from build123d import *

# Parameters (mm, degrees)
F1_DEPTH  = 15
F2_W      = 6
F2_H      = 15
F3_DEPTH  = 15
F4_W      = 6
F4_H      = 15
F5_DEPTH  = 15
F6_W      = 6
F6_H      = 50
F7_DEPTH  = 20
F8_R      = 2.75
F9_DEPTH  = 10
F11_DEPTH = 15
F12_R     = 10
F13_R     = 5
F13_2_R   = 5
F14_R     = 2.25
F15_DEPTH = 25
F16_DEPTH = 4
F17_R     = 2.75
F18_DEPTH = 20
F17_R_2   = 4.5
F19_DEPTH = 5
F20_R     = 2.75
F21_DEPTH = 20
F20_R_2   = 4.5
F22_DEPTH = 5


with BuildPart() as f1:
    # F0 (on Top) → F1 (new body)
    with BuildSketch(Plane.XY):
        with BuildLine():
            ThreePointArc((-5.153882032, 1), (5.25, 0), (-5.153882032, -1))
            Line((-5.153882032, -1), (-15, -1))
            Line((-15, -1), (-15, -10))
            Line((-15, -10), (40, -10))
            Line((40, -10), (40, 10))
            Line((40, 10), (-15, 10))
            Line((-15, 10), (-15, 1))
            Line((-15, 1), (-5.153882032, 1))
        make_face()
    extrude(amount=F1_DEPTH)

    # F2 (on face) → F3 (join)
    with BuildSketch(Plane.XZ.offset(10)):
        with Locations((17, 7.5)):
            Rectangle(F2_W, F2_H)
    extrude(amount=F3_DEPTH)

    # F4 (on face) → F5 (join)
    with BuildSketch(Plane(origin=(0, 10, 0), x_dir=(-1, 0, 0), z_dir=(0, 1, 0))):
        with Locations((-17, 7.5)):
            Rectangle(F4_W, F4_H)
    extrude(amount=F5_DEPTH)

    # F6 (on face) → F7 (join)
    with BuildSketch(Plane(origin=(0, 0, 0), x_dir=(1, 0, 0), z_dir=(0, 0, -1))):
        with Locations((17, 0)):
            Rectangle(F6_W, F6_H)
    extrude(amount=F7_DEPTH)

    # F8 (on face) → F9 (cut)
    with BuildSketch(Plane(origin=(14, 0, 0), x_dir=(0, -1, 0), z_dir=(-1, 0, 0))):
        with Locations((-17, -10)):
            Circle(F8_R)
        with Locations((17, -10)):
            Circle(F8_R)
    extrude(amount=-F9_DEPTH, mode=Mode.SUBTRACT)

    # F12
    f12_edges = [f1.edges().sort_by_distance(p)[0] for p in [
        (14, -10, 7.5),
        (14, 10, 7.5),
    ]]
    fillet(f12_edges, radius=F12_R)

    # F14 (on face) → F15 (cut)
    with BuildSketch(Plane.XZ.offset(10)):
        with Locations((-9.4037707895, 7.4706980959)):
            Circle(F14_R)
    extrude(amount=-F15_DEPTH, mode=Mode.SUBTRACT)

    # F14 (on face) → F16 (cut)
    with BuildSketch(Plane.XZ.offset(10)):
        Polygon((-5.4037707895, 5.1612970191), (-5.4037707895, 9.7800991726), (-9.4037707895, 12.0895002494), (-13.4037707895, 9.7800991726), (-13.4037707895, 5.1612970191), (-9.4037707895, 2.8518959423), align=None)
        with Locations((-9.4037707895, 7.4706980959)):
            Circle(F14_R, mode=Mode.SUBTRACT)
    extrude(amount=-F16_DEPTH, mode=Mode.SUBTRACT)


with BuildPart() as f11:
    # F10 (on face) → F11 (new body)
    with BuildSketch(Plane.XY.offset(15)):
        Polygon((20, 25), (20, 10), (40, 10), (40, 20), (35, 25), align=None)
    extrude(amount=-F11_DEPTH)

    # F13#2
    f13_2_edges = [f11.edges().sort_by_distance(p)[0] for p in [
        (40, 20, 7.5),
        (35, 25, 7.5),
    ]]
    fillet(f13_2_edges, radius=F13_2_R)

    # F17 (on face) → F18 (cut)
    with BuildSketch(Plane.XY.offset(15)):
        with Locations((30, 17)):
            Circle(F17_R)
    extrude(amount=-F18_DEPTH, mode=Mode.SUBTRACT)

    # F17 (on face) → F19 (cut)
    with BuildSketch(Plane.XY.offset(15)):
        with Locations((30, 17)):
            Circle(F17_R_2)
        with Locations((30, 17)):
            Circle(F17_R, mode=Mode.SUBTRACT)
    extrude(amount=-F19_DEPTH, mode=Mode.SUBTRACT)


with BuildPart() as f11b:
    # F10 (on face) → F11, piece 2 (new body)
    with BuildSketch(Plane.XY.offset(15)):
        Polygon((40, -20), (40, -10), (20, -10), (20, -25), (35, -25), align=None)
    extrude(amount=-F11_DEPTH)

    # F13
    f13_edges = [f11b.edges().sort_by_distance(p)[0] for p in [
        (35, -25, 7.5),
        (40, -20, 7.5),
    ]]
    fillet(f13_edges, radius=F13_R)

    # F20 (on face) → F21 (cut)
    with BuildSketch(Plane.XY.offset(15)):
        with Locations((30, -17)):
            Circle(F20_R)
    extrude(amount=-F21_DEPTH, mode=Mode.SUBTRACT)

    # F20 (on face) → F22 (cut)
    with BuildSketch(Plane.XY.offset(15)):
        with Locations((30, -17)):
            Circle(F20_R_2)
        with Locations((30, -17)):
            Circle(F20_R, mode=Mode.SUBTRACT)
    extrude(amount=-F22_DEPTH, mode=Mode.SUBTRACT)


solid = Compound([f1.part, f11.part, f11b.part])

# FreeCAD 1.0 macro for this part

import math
import FreeCAD as App
import Part
import Sketcher
Q = App.Units.Quantity


def edges_at(feature, points):
    """Names of the edges that pass closest to the given points."""
    edges = feature.Shape.Edges
    near = lambda p: min(range(len(edges)), key=lambda i: edges[i].distToShape(Part.Vertex(*p))[0])
    return sorted({f"Edge{near(p) + 1}" for p in points})

doc = App.newDocument("Part")
body = doc.addObject("PartDesign::Body", "Body")

sketch1 = body.newObject("Sketcher::SketchObject", "Sketch")
sketch1.AttachmentSupport = (doc.getObject("XY_Plane"), [""])
sketch1.MapMode = "FlatFace"
sketch1.addGeometry([
    Part.ArcOfCircle(Part.Circle(App.Vector(0, 0, 0), App.Vector(0, 0, 1), 5.2), math.radians(-169), math.radians(169)),
    Part.LineSegment(App.Vector(-5.2, -1, 0), App.Vector(-15, -1, 0)),
    Part.LineSegment(App.Vector(-15, -1, 0), App.Vector(-15, -10, 0)),
    Part.LineSegment(App.Vector(-15, -10, 0), App.Vector(40, -10, 0)),
    Part.LineSegment(App.Vector(40, -10, 0), App.Vector(40, 10, 0)),
    Part.LineSegment(App.Vector(40, 10, 0), App.Vector(-15, 10, 0)),
    Part.LineSegment(App.Vector(-15, 10, 0), App.Vector(-15, 1, 0)),
    Part.LineSegment(App.Vector(-15, 1, 0), App.Vector(-5.2, 1, 0)),
], False)
sketch1.addConstraint([
    Sketcher.Constraint("Coincident", 0, 1, 1, 1),
    Sketcher.Constraint("Coincident", 1, 2, 2, 1),
    Sketcher.Constraint("Coincident", 2, 2, 3, 1),
    Sketcher.Constraint("Coincident", 3, 2, 4, 1),
    Sketcher.Constraint("Coincident", 4, 2, 5, 1),
    Sketcher.Constraint("Coincident", 5, 2, 6, 1),
    Sketcher.Constraint("Coincident", 6, 2, 7, 1),
    Sketcher.Constraint("Coincident", 7, 2, 0, 2),
    Sketcher.Constraint("Horizontal", 1),
    Sketcher.Constraint("Vertical", 2),
    Sketcher.Constraint("Horizontal", 3),
    Sketcher.Constraint("Vertical", 4),
    Sketcher.Constraint("Horizontal", 5),
    Sketcher.Constraint("Vertical", 6),
    Sketcher.Constraint("Horizontal", 7),
    Sketcher.Constraint("Coincident", 0, 3, -1, 1),
    Sketcher.Constraint("Symmetric", 2, 2, 5, 2, -1),
    Sketcher.Constraint("Vertical", 0, 1, 7, 2),
    Sketcher.Constraint("DistanceX", 3, 1, 3, 2, 55.0),
    Sketcher.Constraint("DistanceY", 2, 2, 2, 1, 9.0),
    Sketcher.Constraint("DistanceY", 4, 1, 4, 2, 20.0),
    Sketcher.Constraint("Radius", 0, 5.25),
    Sketcher.Constraint("DistanceX", 1, 2, -1, 1, 15.0),
])
pad1 = body.newObject("PartDesign::Pad", "Pad")
pad1.Profile = sketch1
pad1.Length = 15

sketch2 = body.newObject("Sketcher::SketchObject", "Sketch001")
sketch2.AttachmentSupport = (doc.getObject("XZ_Plane"), [""])
sketch2.MapMode = "FlatFace"
sketch2.AttachmentOffset = App.Placement(App.Vector(0, 0, 10), App.Rotation())
sketch2.addGeometry([
    Part.LineSegment(App.Vector(14, 15, 0), App.Vector(14, 0, 0)),
    Part.LineSegment(App.Vector(14, 0, 0), App.Vector(20, 0, 0)),
    Part.LineSegment(App.Vector(20, 0, 0), App.Vector(20, 15, 0)),
    Part.LineSegment(App.Vector(20, 15, 0), App.Vector(14, 15, 0)),
], False)
sketch2.addConstraint([
    Sketcher.Constraint("Coincident", 0, 2, 1, 1),
    Sketcher.Constraint("Coincident", 1, 2, 2, 1),
    Sketcher.Constraint("Coincident", 2, 2, 3, 1),
    Sketcher.Constraint("Coincident", 3, 2, 0, 1),
    Sketcher.Constraint("Vertical", 0),
    Sketcher.Constraint("Horizontal", 1),
    Sketcher.Constraint("Vertical", 2),
    Sketcher.Constraint("Horizontal", 3),
    Sketcher.Constraint("PointOnObject", 0, 2, -1),
    Sketcher.Constraint("DistanceX", 1, 1, 1, 2, 6.0),
    Sketcher.Constraint("DistanceY", 0, 2, 0, 1, 15.0),
    Sketcher.Constraint("DistanceX", -1, 1, 0, 2, 14.0),
])
pad2 = body.newObject("PartDesign::Pad", "Pad001")
pad2.Profile = sketch2
pad2.Length = 15

sketch3 = body.newObject("Sketcher::SketchObject", "Sketch002")
sketch3.AttachmentSupport = (doc.getObject("XZ_Plane"), [""])
sketch3.MapMode = "FlatFace"
sketch3.AttachmentOffset = App.Placement(App.Vector(0, 0, -10), App.Rotation())
sketch3.addGeometry([
    Part.LineSegment(App.Vector(20, 15, 0), App.Vector(20, 0, 0)),
    Part.LineSegment(App.Vector(20, 0, 0), App.Vector(14, 0, 0)),
    Part.LineSegment(App.Vector(14, 0, 0), App.Vector(14, 15, 0)),
    Part.LineSegment(App.Vector(14, 15, 0), App.Vector(20, 15, 0)),
], False)
sketch3.addConstraint([
    Sketcher.Constraint("Coincident", 0, 2, 1, 1),
    Sketcher.Constraint("Coincident", 1, 2, 2, 1),
    Sketcher.Constraint("Coincident", 2, 2, 3, 1),
    Sketcher.Constraint("Coincident", 3, 2, 0, 1),
    Sketcher.Constraint("Vertical", 0),
    Sketcher.Constraint("Horizontal", 1),
    Sketcher.Constraint("Vertical", 2),
    Sketcher.Constraint("Horizontal", 3),
    Sketcher.Constraint("PointOnObject", 0, 2, -1),
    Sketcher.Constraint("DistanceX", 1, 2, 1, 1, 6.0),
    Sketcher.Constraint("DistanceY", 0, 2, 0, 1, 15.0),
    Sketcher.Constraint("DistanceX", -1, 1, 0, 2, 20.0),
])
pad3 = body.newObject("PartDesign::Pad", "Pad002")
pad3.Profile = sketch3
pad3.Length = 15
pad3.Reversed = True

sketch4 = body.newObject("Sketcher::SketchObject", "Sketch003")
sketch4.AttachmentSupport = (doc.getObject("XY_Plane"), [""])
sketch4.MapMode = "FlatFace"
sketch4.addGeometry([
    Part.LineSegment(App.Vector(14, -25, 0), App.Vector(14, 25, 0)),
    Part.LineSegment(App.Vector(14, 25, 0), App.Vector(20, 25, 0)),
    Part.LineSegment(App.Vector(20, 25, 0), App.Vector(20, -25, 0)),
    Part.LineSegment(App.Vector(20, -25, 0), App.Vector(14, -25, 0)),
], False)
sketch4.addConstraint([
    Sketcher.Constraint("Coincident", 0, 2, 1, 1),
    Sketcher.Constraint("Coincident", 1, 2, 2, 1),
    Sketcher.Constraint("Coincident", 2, 2, 3, 1),
    Sketcher.Constraint("Coincident", 3, 2, 0, 1),
    Sketcher.Constraint("Vertical", 0),
    Sketcher.Constraint("Horizontal", 1),
    Sketcher.Constraint("Vertical", 2),
    Sketcher.Constraint("Horizontal", 3),
    Sketcher.Constraint("DistanceX", 1, 1, 1, 2, 6.0),
    Sketcher.Constraint("DistanceY", 0, 1, 0, 2, 50.0),
    Sketcher.Constraint("DistanceX", -1, 1, 0, 2, 14.0),
    Sketcher.Constraint("DistanceY", -1, 1, 0, 2, 25.0),
])
pad4 = body.newObject("PartDesign::Pad", "Pad003")
pad4.Profile = sketch4
pad4.Length = 20
pad4.Reversed = True

sketch5 = body.newObject("Sketcher::SketchObject", "Sketch004")
sketch5.AttachmentSupport = (doc.getObject("YZ_Plane"), [""])
sketch5.MapMode = "FlatFace"
sketch5.AttachmentOffset = App.Placement(App.Vector(0, 0, 14), App.Rotation())
sketch5.addGeometry([
    Part.Circle(App.Vector(17, -10, 0), App.Vector(0, 0, 1), 2.8),
    Part.Circle(App.Vector(-17, -10, 0), App.Vector(0, 0, 1), 2.8),
], False)
sketch5.addConstraint([
    Sketcher.Constraint("Equal", 0, 1),
    Sketcher.Constraint("Symmetric", 0, 3, 1, 3, -2),
    Sketcher.Constraint("Diameter", 0, 5.5),
    Sketcher.Constraint("DistanceX", -1, 1, 0, 3, 17.0),
    Sketcher.Constraint("DistanceY", 0, 3, -1, 1, 10.0),
])
pocket1 = body.newObject("PartDesign::Pocket", "Pocket")
pocket1.Profile = sketch5
pocket1.Length = 10
pocket1.Reversed = True
doc.recompute()

fillet = body.newObject("PartDesign::Fillet", "Fillet")
fillet.Base = (pocket1, edges_at(pocket1, [(14, -10, 7.5), (14, 10, 7.5)]))
fillet.Radius = 10

sketch6 = body.newObject("Sketcher::SketchObject", "Sketch005")
sketch6.AttachmentSupport = (doc.getObject("XZ_Plane"), [""])
sketch6.MapMode = "FlatFace"
sketch6.AttachmentOffset = App.Placement(App.Vector(0, 0, 10), App.Rotation())
sketch6.addGeometry(Part.Circle(App.Vector(-9.4, 7.5, 0), App.Vector(0, 0, 1), 2.2), False)
sketch6.addConstraint([
    Sketcher.Constraint("Diameter", 0, 4.5),
    Sketcher.Constraint("DistanceY", -1, 1, 0, 3, 7.470698),
    Sketcher.Constraint("DistanceX", 0, 3, -1, 1, 9.403771),
])
pocket2 = body.newObject("PartDesign::Pocket", "Pocket001")
pocket2.Profile = sketch6
pocket2.Length = 25

sketch7 = body.newObject("Sketcher::SketchObject", "Sketch006")
sketch7.AttachmentSupport = (doc.getObject("XZ_Plane"), [""])
sketch7.MapMode = "FlatFace"
sketch7.AttachmentOffset = App.Placement(App.Vector(0, 0, 10), App.Rotation())
sketch7.addGeometry([
    Part.LineSegment(App.Vector(-5.4, 5.2, 0), App.Vector(-5.4, 9.8, 0)),
    Part.LineSegment(App.Vector(-5.4, 9.8, 0), App.Vector(-9.4, 12.1, 0)),
    Part.LineSegment(App.Vector(-9.4, 12.1, 0), App.Vector(-13.4, 9.8, 0)),
    Part.LineSegment(App.Vector(-13.4, 9.8, 0), App.Vector(-13.4, 5.2, 0)),
    Part.LineSegment(App.Vector(-13.4, 5.2, 0), App.Vector(-9.4, 2.9, 0)),
    Part.LineSegment(App.Vector(-9.4, 2.9, 0), App.Vector(-5.4, 5.2, 0)),
    Part.Circle(App.Vector(-9.4, 7.5, 0), App.Vector(0, 0, 1), 2.2),
], False)
sketch7.addConstraint([
    Sketcher.Constraint("Coincident", 0, 2, 1, 1),
    Sketcher.Constraint("Coincident", 1, 2, 2, 1),
    Sketcher.Constraint("Coincident", 2, 2, 3, 1),
    Sketcher.Constraint("Coincident", 3, 2, 4, 1),
    Sketcher.Constraint("Coincident", 4, 2, 5, 1),
    Sketcher.Constraint("Coincident", 5, 2, 0, 1),
    Sketcher.Constraint("Vertical", 0),
    Sketcher.Constraint("Vertical", 3),
    Sketcher.Constraint("Parallel", 1, 4),
    Sketcher.Constraint("Parallel", 2, 5),
    Sketcher.Constraint("Horizontal", 0, 2, 2, 2),
    Sketcher.Constraint("Horizontal", 3, 2, 5, 2),
    Sketcher.Constraint("Vertical", 6, 3, 1, 2),
    Sketcher.Constraint("Vertical", 1, 2, 4, 2),
    Sketcher.Constraint("Diameter", 6, 4.5),
    Sketcher.Constraint("Angle", 1, Q("150 deg")),
    Sketcher.Constraint("DistanceX", 6, 3, 0, 2, 4.0),
    Sketcher.Constraint("DistanceY", -1, 1, 6, 3, 7.470698),
    Sketcher.Constraint("DistanceY", -1, 1, 0, 2, 9.780099),
    Sketcher.Constraint("DistanceY", 3, 2, 6, 3, 2.309401),
    Sketcher.Constraint("DistanceX", 6, 3, -1, 1, 9.403771),
])
pocket3 = body.newObject("PartDesign::Pocket", "Pocket002")
pocket3.Profile = sketch7
pocket3.Length = 4
body2 = doc.addObject("PartDesign::Body", "Body001")

sketch8 = body2.newObject("Sketcher::SketchObject", "Sketch007")
sketch8.AttachmentSupport = (doc.getObject("XY_Plane001"), [""])
sketch8.MapMode = "FlatFace"
sketch8.AttachmentOffset = App.Placement(App.Vector(0, 0, 15), App.Rotation())
sketch8.addGeometry([
    Part.LineSegment(App.Vector(20, 25, 0), App.Vector(20, 10, 0)),
    Part.LineSegment(App.Vector(20, 10, 0), App.Vector(40, 10, 0)),
    Part.LineSegment(App.Vector(40, 10, 0), App.Vector(40, 20, 0)),
    Part.LineSegment(App.Vector(40, 20, 0), App.Vector(35, 25, 0)),
    Part.LineSegment(App.Vector(35, 25, 0), App.Vector(20, 25, 0)),
], False)
sketch8.addConstraint([
    Sketcher.Constraint("Coincident", 0, 2, 1, 1),
    Sketcher.Constraint("Coincident", 1, 2, 2, 1),
    Sketcher.Constraint("Coincident", 2, 2, 3, 1),
    Sketcher.Constraint("Coincident", 3, 2, 4, 1),
    Sketcher.Constraint("Coincident", 4, 2, 0, 1),
    Sketcher.Constraint("Vertical", 0),
    Sketcher.Constraint("Horizontal", 1),
    Sketcher.Constraint("Vertical", 2),
    Sketcher.Constraint("Horizontal", 4),
    Sketcher.Constraint("Equal", 4, 0),
    Sketcher.Constraint("DistanceX", 1, 1, 1, 2, 20.0),
    Sketcher.Constraint("DistanceX", 4, 2, 4, 1, 15.0),
    Sketcher.Constraint("DistanceY", 2, 1, 2, 2, 10.0),
    Sketcher.Constraint("DistanceX", -1, 1, 0, 2, 20.0),
    Sketcher.Constraint("DistanceY", -1, 1, 0, 2, 10.0),
])
pad5 = body2.newObject("PartDesign::Pad", "Pad004")
pad5.Profile = sketch8
pad5.Length = 15
pad5.Reversed = True
doc.recompute()

fillet2 = body2.newObject("PartDesign::Fillet", "Fillet001")
fillet2.Base = (pad5, edges_at(pad5, [(40, 20, 7.5), (35, 25, 7.5)]))
fillet2.Radius = 5

sketch9 = body2.newObject("Sketcher::SketchObject", "Sketch008")
sketch9.AttachmentSupport = (doc.getObject("XY_Plane001"), [""])
sketch9.MapMode = "FlatFace"
sketch9.AttachmentOffset = App.Placement(App.Vector(0, 0, 15), App.Rotation())
sketch9.addGeometry(Part.Circle(App.Vector(30, 17, 0), App.Vector(0, 0, 1), 2.8), False)
sketch9.addConstraint([
    Sketcher.Constraint("Diameter", 0, 5.5),
    Sketcher.Constraint("DistanceX", -1, 1, 0, 3, 30.0),
    Sketcher.Constraint("DistanceY", -1, 1, 0, 3, 17.0),
])
pocket4 = body2.newObject("PartDesign::Pocket", "Pocket003")
pocket4.Profile = sketch9
pocket4.Length = 20

sketch10 = body2.newObject("Sketcher::SketchObject", "Sketch009")
sketch10.AttachmentSupport = (doc.getObject("XY_Plane001"), [""])
sketch10.MapMode = "FlatFace"
sketch10.AttachmentOffset = App.Placement(App.Vector(0, 0, 15), App.Rotation())
sketch10.addGeometry([
    Part.Circle(App.Vector(30, 17, 0), App.Vector(0, 0, 1), 4.5),
    Part.Circle(App.Vector(30, 17, 0), App.Vector(0, 0, 1), 2.8),
], False)
sketch10.addConstraint([
    Sketcher.Constraint("Coincident", 1, 3, 0, 3),
    Sketcher.Constraint("Diameter", 0, 9.0),
    Sketcher.Constraint("Diameter", 1, 5.5),
    Sketcher.Constraint("DistanceX", -1, 1, 0, 3, 30.0),
    Sketcher.Constraint("DistanceY", -1, 1, 0, 3, 17.0),
])
pocket5 = body2.newObject("PartDesign::Pocket", "Pocket004")
pocket5.Profile = sketch10
pocket5.Length = 5
body3 = doc.addObject("PartDesign::Body", "Body002")

sketch11 = body3.newObject("Sketcher::SketchObject", "Sketch010")
sketch11.AttachmentSupport = (doc.getObject("XY_Plane002"), [""])
sketch11.MapMode = "FlatFace"
sketch11.AttachmentOffset = App.Placement(App.Vector(0, 0, 15), App.Rotation())
sketch11.addGeometry([
    Part.LineSegment(App.Vector(40, -20, 0), App.Vector(40, -10, 0)),
    Part.LineSegment(App.Vector(40, -10, 0), App.Vector(20, -10, 0)),
    Part.LineSegment(App.Vector(20, -10, 0), App.Vector(20, -25, 0)),
    Part.LineSegment(App.Vector(20, -25, 0), App.Vector(35, -25, 0)),
    Part.LineSegment(App.Vector(35, -25, 0), App.Vector(40, -20, 0)),
], False)
sketch11.addConstraint([
    Sketcher.Constraint("Coincident", 0, 2, 1, 1),
    Sketcher.Constraint("Coincident", 1, 2, 2, 1),
    Sketcher.Constraint("Coincident", 2, 2, 3, 1),
    Sketcher.Constraint("Coincident", 3, 2, 4, 1),
    Sketcher.Constraint("Coincident", 4, 2, 0, 1),
    Sketcher.Constraint("Vertical", 0),
    Sketcher.Constraint("Horizontal", 1),
    Sketcher.Constraint("Vertical", 2),
    Sketcher.Constraint("Horizontal", 3),
    Sketcher.Constraint("Equal", 3, 2),
    Sketcher.Constraint("DistanceX", 1, 2, 1, 1, 20.0),
    Sketcher.Constraint("DistanceX", 3, 1, 3, 2, 15.0),
    Sketcher.Constraint("DistanceY", 0, 1, 0, 2, 10.0),
    Sketcher.Constraint("DistanceX", -1, 1, 0, 2, 40.0),
    Sketcher.Constraint("DistanceY", 0, 2, -1, 1, 10.0),
])
pad6 = body3.newObject("PartDesign::Pad", "Pad005")
pad6.Profile = sketch11
pad6.Length = 15
pad6.Reversed = True
doc.recompute()

fillet3 = body3.newObject("PartDesign::Fillet", "Fillet002")
fillet3.Base = (pad6, edges_at(pad6, [(35, -25, 7.5), (40, -20, 7.5)]))
fillet3.Radius = 5

sketch12 = body3.newObject("Sketcher::SketchObject", "Sketch011")
sketch12.AttachmentSupport = (doc.getObject("XY_Plane002"), [""])
sketch12.MapMode = "FlatFace"
sketch12.AttachmentOffset = App.Placement(App.Vector(0, 0, 15), App.Rotation())
sketch12.addGeometry(Part.Circle(App.Vector(30, -17, 0), App.Vector(0, 0, 1), 2.8), False)
sketch12.addConstraint([
    Sketcher.Constraint("Diameter", 0, 5.5),
    Sketcher.Constraint("DistanceX", -1, 1, 0, 3, 30.0),
    Sketcher.Constraint("DistanceY", 0, 3, -1, 1, 17.0),
])
pocket6 = body3.newObject("PartDesign::Pocket", "Pocket005")
pocket6.Profile = sketch12
pocket6.Length = 20

sketch13 = body3.newObject("Sketcher::SketchObject", "Sketch012")
sketch13.AttachmentSupport = (doc.getObject("XY_Plane002"), [""])
sketch13.MapMode = "FlatFace"
sketch13.AttachmentOffset = App.Placement(App.Vector(0, 0, 15), App.Rotation())
sketch13.addGeometry([
    Part.Circle(App.Vector(30, -17, 0), App.Vector(0, 0, 1), 4.5),
    Part.Circle(App.Vector(30, -17, 0), App.Vector(0, 0, 1), 2.8),
], False)
sketch13.addConstraint([
    Sketcher.Constraint("Coincident", 1, 3, 0, 3),
    Sketcher.Constraint("Diameter", 0, 9.0),
    Sketcher.Constraint("Diameter", 1, 5.5),
    Sketcher.Constraint("DistanceX", -1, 1, 0, 3, 30.0),
    Sketcher.Constraint("DistanceY", 0, 3, -1, 1, 17.0),
])
pocket7 = body3.newObject("PartDesign::Pocket", "Pocket006")
pocket7.Profile = sketch13
pocket7.Length = 5

doc.recompute()
